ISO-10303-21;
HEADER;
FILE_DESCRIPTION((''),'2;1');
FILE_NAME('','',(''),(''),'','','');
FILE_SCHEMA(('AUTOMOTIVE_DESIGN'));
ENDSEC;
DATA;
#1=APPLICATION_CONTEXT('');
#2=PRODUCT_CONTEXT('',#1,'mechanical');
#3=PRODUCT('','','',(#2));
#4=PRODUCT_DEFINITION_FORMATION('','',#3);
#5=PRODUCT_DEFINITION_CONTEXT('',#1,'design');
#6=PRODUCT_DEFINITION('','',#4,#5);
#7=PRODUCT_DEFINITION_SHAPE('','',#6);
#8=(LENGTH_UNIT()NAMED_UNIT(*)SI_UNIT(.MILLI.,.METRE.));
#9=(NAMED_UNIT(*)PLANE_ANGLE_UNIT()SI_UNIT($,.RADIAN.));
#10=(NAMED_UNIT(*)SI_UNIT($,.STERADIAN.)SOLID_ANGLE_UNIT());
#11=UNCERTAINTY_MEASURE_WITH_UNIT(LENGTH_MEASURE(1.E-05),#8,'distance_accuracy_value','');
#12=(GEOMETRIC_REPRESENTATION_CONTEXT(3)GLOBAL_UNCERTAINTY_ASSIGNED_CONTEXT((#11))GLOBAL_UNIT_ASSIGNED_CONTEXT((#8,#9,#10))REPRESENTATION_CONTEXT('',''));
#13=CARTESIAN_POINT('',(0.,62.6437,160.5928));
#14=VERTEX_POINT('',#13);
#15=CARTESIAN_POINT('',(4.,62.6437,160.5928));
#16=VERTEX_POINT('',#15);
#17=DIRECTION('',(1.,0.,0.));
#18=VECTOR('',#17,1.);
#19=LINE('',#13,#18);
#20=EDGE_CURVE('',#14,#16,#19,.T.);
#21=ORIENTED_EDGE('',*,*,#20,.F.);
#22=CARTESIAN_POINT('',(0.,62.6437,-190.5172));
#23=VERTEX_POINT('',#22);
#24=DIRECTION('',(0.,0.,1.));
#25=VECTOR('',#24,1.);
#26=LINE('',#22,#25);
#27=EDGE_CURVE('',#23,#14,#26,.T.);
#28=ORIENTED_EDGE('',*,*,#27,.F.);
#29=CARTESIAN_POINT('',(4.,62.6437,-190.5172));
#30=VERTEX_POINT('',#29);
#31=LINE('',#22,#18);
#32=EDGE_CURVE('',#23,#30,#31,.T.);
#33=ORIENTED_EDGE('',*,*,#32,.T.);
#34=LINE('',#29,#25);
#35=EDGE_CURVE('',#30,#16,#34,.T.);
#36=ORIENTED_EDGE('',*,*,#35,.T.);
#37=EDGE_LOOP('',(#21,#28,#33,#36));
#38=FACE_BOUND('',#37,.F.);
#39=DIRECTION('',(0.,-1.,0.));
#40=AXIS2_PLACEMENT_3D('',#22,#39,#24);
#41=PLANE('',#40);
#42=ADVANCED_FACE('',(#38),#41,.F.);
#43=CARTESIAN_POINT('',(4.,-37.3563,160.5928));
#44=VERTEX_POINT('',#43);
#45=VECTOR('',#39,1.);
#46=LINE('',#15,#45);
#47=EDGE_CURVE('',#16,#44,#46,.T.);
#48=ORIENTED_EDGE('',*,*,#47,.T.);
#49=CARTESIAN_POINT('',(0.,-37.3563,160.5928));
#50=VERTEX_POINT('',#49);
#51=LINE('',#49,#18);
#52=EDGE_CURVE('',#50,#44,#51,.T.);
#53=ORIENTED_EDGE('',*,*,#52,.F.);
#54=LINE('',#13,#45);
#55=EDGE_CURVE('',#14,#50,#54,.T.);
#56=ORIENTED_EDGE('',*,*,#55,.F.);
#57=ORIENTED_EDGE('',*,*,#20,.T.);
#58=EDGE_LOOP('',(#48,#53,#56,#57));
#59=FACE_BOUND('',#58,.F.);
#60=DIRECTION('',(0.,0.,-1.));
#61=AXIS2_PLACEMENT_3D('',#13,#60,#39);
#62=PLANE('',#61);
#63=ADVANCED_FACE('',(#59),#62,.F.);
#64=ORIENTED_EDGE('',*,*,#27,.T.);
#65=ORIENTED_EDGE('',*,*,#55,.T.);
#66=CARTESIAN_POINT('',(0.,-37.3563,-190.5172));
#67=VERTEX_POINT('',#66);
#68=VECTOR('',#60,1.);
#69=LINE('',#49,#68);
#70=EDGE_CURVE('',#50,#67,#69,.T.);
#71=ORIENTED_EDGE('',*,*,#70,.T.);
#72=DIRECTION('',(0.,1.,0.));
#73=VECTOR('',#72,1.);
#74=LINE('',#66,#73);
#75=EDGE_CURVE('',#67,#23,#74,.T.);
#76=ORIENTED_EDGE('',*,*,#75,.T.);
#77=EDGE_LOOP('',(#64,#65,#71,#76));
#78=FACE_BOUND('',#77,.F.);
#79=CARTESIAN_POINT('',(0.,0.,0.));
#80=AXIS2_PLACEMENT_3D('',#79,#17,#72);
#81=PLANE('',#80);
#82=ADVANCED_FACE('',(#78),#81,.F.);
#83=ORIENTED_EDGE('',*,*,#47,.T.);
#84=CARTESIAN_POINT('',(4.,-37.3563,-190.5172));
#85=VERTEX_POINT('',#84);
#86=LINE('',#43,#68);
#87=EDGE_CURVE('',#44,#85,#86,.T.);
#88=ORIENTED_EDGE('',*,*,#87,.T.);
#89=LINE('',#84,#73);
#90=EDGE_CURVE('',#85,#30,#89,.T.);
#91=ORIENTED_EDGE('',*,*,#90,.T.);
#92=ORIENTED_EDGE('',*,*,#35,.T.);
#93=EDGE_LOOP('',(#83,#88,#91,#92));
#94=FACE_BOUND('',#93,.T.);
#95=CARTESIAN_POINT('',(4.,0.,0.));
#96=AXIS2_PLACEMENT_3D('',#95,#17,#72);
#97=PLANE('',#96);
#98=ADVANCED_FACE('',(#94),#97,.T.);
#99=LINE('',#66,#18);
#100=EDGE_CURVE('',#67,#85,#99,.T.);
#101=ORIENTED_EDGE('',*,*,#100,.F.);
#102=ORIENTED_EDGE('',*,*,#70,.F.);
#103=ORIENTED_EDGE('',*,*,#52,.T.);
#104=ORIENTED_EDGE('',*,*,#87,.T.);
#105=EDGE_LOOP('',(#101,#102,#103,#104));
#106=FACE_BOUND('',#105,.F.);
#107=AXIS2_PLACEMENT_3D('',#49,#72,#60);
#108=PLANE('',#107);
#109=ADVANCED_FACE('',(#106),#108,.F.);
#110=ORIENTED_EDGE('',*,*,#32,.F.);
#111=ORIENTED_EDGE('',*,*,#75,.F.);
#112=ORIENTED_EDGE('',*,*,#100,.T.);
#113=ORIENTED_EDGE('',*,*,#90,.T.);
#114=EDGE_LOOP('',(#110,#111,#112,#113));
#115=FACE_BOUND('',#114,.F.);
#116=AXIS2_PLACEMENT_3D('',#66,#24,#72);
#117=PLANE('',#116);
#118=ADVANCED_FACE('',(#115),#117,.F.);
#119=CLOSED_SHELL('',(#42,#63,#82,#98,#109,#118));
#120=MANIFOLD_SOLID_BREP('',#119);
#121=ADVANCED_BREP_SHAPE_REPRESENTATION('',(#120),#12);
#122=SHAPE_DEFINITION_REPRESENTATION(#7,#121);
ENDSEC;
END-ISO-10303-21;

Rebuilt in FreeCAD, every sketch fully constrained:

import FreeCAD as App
import Part
import Sketcher

doc = App.newDocument("Part")
body = doc.addObject("PartDesign::Body", "Body")

sketch1 = body.newObject("Sketcher::SketchObject", "Sketch")
sketch1.AttachmentSupport = (doc.getObject("YZ_Plane"), [""])
sketch1.MapMode = "FlatFace"
sketch1.addGeometry(Part.LineSegment(App.Vector(62.6437, -190.5172, 0), App.Vector(62.6437, 160.5928, 0)), False)
sketch1.addGeometry(Part.LineSegment(App.Vector(62.6437, 160.5928, 0), App.Vector(-37.3563, 160.5928, 0)), False)
sketch1.addGeometry(Part.LineSegment(App.Vector(-37.3563, 160.5928, 0), App.Vector(-37.3563, -190.5172, 0)), False)
sketch1.addGeometry(Part.LineSegment(App.Vector(-37.3563, -190.5172, 0), App.Vector(62.6437, -190.5172, 0)), False)
sketch1.addConstraint(Sketcher.Constraint("Coincident", 0, 2, 1, 1))
sketch1.addConstraint(Sketcher.Constraint("Coincident", 1, 2, 2, 1))
sketch1.addConstraint(Sketcher.Constraint("Coincident", 2, 2, 3, 1))
sketch1.addConstraint(Sketcher.Constraint("Coincident", 3, 2, 0, 1))
sketch1.addConstraint(Sketcher.Constraint("Vertical", 0))
sketch1.addConstraint(Sketcher.Constraint("Horizontal", 1))
sketch1.addConstraint(Sketcher.Constraint("Vertical", 2))
sketch1.addConstraint(Sketcher.Constraint("Horizontal", 3))
sketch1.addConstraint(Sketcher.Constraint("DistanceX", 1, 2, 1, 1, 100.0))
sketch1.addConstraint(Sketcher.Constraint("DistanceY", 0, 1, 0, 2, 351.11))
sketch1.addConstraint(Sketcher.Constraint("DistanceX", -1, 1, 0, 2, 62.6437))
sketch1.addConstraint(Sketcher.Constraint("DistanceY", -1, 1, 0, 2, 160.5928))
pad1 = body.newObject("PartDesign::Pad", "Pad")
pad1.Profile = sketch1
pad1.Length = 4

doc.recompute()
